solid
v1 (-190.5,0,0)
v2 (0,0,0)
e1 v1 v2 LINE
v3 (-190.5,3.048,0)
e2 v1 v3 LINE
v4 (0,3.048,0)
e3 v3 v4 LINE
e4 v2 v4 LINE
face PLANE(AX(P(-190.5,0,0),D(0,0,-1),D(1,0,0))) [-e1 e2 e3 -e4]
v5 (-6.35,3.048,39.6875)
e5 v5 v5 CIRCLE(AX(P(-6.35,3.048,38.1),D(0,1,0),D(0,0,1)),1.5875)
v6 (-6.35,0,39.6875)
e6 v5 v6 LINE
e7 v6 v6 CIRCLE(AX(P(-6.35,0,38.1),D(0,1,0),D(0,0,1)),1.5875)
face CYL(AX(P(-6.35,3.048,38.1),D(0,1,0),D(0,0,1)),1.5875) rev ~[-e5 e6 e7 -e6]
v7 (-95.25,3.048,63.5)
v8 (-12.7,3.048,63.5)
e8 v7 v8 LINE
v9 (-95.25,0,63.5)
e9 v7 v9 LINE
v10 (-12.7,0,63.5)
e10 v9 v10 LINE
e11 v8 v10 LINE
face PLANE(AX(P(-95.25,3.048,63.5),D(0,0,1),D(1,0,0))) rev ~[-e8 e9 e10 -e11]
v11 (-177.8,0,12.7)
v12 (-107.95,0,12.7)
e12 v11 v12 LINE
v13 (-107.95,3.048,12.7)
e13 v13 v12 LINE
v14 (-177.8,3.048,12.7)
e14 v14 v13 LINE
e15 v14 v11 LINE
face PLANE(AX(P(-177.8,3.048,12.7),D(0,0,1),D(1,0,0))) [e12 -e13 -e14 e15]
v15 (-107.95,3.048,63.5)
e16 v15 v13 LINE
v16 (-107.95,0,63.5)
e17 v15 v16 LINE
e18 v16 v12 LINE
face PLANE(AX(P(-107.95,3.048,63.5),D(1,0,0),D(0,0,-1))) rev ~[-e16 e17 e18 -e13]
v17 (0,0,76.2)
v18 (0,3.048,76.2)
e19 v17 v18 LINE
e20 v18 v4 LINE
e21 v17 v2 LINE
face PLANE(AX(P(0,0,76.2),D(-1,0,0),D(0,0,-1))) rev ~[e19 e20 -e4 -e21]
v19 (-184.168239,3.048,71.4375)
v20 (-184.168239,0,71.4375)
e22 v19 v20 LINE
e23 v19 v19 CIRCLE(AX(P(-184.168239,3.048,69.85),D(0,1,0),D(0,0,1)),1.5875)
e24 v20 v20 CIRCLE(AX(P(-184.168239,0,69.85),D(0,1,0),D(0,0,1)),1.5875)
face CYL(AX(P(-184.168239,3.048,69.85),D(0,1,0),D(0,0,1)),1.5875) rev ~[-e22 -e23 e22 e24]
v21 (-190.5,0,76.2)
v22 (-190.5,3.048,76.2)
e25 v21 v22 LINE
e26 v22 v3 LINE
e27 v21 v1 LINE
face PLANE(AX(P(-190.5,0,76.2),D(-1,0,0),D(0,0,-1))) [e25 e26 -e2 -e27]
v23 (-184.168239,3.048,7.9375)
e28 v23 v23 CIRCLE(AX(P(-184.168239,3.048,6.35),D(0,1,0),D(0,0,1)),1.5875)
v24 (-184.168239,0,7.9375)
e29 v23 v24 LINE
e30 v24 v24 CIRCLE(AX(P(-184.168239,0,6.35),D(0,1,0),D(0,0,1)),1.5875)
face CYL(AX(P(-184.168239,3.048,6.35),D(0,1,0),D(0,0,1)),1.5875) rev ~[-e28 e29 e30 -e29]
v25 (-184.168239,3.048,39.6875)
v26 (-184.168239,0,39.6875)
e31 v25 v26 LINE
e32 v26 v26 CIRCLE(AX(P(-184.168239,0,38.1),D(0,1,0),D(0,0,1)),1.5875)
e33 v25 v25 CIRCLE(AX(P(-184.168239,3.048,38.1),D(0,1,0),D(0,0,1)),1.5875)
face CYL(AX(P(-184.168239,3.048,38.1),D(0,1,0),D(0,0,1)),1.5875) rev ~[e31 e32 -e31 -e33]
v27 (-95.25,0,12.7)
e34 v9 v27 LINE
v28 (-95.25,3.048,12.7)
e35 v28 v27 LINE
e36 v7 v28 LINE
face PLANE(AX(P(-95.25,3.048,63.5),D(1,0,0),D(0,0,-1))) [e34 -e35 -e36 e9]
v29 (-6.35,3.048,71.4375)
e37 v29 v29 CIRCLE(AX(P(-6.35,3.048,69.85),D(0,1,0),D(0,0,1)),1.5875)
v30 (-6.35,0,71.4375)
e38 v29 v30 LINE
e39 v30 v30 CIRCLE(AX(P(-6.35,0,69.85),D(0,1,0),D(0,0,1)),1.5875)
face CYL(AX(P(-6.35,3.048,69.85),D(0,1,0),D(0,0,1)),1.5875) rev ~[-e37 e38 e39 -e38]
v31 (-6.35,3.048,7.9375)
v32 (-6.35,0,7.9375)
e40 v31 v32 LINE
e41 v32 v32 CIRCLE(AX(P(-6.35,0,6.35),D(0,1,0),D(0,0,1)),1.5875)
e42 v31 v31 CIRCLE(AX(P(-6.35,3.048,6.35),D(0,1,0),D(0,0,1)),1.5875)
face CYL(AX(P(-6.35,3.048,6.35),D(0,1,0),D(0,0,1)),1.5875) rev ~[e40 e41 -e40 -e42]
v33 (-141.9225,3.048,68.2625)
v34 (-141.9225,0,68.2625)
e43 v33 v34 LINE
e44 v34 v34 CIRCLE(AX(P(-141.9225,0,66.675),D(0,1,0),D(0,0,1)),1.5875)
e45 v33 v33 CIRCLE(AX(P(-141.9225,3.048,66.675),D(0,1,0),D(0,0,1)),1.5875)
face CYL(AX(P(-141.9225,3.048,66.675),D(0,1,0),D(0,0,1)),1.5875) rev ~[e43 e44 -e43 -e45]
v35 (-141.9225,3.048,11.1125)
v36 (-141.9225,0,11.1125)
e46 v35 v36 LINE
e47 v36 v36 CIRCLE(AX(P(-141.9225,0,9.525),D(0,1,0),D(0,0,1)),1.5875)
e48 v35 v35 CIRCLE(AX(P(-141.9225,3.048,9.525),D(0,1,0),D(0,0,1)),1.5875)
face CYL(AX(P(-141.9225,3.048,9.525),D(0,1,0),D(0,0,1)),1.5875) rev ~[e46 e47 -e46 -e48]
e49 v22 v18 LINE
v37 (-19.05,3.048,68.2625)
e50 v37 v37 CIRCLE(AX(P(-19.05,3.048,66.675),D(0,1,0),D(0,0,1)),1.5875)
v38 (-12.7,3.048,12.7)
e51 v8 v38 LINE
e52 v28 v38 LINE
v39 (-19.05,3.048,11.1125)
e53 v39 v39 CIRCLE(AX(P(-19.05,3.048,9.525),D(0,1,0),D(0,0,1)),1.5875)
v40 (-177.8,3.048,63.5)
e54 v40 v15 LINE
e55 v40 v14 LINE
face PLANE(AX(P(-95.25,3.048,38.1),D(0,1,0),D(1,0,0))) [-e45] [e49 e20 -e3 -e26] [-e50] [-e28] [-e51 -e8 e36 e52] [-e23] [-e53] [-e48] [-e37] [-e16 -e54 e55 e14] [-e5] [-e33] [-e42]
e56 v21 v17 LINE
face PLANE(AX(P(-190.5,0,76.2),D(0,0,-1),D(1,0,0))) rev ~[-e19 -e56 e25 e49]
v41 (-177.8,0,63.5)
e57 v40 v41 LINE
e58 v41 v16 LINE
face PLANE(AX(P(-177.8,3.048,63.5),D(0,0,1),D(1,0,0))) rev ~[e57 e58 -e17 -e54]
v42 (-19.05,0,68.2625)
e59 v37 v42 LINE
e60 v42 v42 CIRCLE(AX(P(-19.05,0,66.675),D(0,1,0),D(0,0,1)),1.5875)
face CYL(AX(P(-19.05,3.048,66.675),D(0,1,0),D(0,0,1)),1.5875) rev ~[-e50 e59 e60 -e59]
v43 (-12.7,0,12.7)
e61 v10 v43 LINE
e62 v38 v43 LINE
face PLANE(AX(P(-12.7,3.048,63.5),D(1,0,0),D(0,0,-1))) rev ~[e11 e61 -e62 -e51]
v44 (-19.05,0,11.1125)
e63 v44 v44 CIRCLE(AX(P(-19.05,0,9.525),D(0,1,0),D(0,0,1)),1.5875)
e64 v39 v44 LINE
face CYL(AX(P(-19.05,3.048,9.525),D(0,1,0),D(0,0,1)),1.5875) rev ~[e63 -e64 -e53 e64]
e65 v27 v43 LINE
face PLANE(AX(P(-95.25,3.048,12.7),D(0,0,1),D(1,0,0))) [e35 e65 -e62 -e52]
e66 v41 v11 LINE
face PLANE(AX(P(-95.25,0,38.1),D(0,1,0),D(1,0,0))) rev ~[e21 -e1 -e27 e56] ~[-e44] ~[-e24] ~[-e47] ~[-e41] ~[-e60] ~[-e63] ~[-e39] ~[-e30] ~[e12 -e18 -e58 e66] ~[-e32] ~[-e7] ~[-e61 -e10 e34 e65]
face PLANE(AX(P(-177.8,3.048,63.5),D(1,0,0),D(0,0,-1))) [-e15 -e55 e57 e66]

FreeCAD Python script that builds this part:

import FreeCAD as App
import Part
import Sketcher

V = App.Vector
Q = App.Units.Quantity

doc = App.newDocument("Part")
body = doc.addObject("PartDesign::Body", "Body")

sketch1 = doc.addObject("Sketcher::SketchObject", "Sketch")
body.addObject(sketch1)
sketch1.AttachmentSupport = (doc.XZ_Plane, [""])
sketch1.MapMode = "FlatFace"
sketch1.addGeometry(Part.LineSegment(V(-190, 0, 0), V(-190, 76, 0)), False)
sketch1.addGeometry(Part.LineSegment(V(-190, 76, 0), V(0, 76, 0)), False)
sketch1.addGeometry(Part.LineSegment(V(0, 76, 0), V(0, 0, 0)), False)
sketch1.addGeometry(Part.LineSegment(V(0, 0, 0), V(-190, 0, 0)), False)
sketch1.addConstraint(Sketcher.Constraint("Coincident", 0, 2, 1, 1))
sketch1.addConstraint(Sketcher.Constraint("Coincident", 1, 2, 2, 1))
sketch1.addConstraint(Sketcher.Constraint("Coincident", 2, 2, 3, 1))
sketch1.addConstraint(Sketcher.Constraint("Coincident", 3, 2, 0, 1))
sketch1.addConstraint(Sketcher.Constraint("Vertical", 0))
sketch1.addConstraint(Sketcher.Constraint("Horizontal", 1))
sketch1.addConstraint(Sketcher.Constraint("Vertical", 2))
sketch1.addConstraint(Sketcher.Constraint("Horizontal", 3))
sketch1.addConstraint(Sketcher.Constraint("Coincident", 2, 2, -1, 1))
sketch1.addConstraint(Sketcher.Constraint("DistanceY", 0, 1, 0, 2, Q("3 in")))
sketch1.addConstraint(Sketcher.Constraint("DistanceX", 1, 1, 1, 2, Q("7.5 in")))
pad1 = doc.addObject("PartDesign::Pad", "Pad")
body.addObject(pad1)
pad1.Profile = sketch1
pad1.Length = Q("0.12 in")
pad1.Reversed = True

sketch2 = doc.addObject("Sketcher::SketchObject", "Sketch001")
body.addObject(sketch2)
sketch2.AttachmentSupport = (doc.XZ_Plane, [""])
sketch2.MapMode = "FlatFace"
sketch2.AttachmentOffset = App.Placement(V(0, 0, -0.12 * 25.4), App.Rotation())
sketch2.addGeometry(Part.LineSegment(V(-95, 13, 0), V(-95, 64, 0)), False)
sketch2.addGeometry(Part.LineSegment(V(-95, 64, 0), V(-13, 64, 0)), False)
sketch2.addGeometry(Part.LineSegment(V(-13, 64, 0), V(-13, 13, 0)), False)
sketch2.addGeometry(Part.LineSegment(V(-13, 13, 0), V(-95, 13, 0)), False)
sketch2.addGeometry(Part.LineSegment(V(-178, 13, 0), V(-178, 64, 0)), False)
sketch2.addGeometry(Part.LineSegment(V(-178, 64, 0), V(-108, 64, 0)), False)
sketch2.addGeometry(Part.LineSegment(V(-108, 64, 0), V(-108, 13, 0)), False)
sketch2.addGeometry(Part.LineSegment(V(-108, 13, 0), V(-178, 13, 0)), False)
sketch2.addConstraint(Sketcher.Constraint("Coincident", 0, 2, 1, 1))
sketch2.addConstraint(Sketcher.Constraint("Coincident", 1, 2, 2, 1))
sketch2.addConstraint(Sketcher.Constraint("Coincident", 2, 2, 3, 1))
sketch2.addConstraint(Sketcher.Constraint("Coincident", 3, 2, 0, 1))
sketch2.addConstraint(Sketcher.Constraint("Coincident", 4, 2, 5, 1))
sketch2.addConstraint(Sketcher.Constraint("Coincident", 5, 2, 6, 1))
sketch2.addConstraint(Sketcher.Constraint("Coincident", 6, 2, 7, 1))
sketch2.addConstraint(Sketcher.Constraint("Coincident", 7, 2, 4, 1))
sketch2.addConstraint(Sketcher.Constraint("Vertical", 0))
sketch2.addConstraint(Sketcher.Constraint("Horizontal", 1))
sketch2.addConstraint(Sketcher.Constraint("Vertical", 2))
sketch2.addConstraint(Sketcher.Constraint("Horizontal", 3))
sketch2.addConstraint(Sketcher.Constraint("Vertical", 4))
sketch2.addConstraint(Sketcher.Constraint("Horizontal", 5))
sketch2.addConstraint(Sketcher.Constraint("Vertical", 6))
sketch2.addConstraint(Sketcher.Constraint("Horizontal", 7))
sketch2.addConstraint(Sketcher.Constraint("Horizontal", 1, 2, 4, 2))
sketch2.addConstraint(Sketcher.Constraint("Horizontal", 3, 2, 6, 2))
sketch2.addConstraint(Sketcher.Constraint("DistanceY", 0, 1, 0, 2, Q("2 in")))
sketch2.addConstraint(Sketcher.Constraint("DistanceX", 4, 2, -1, 1, Q("7 in")))
sketch2.addConstraint(Sketcher.Constraint("DistanceX", 1, 1, 1, 2, Q("3.25 in")))
sketch2.addConstraint(Sketcher.Constraint("DistanceX", 5, 1, 5, 2, Q("2.75 in")))
sketch2.addConstraint(Sketcher.Constraint("DistanceY", -1, 1, 0, 2, Q("2.5 in")))
sketch2.addConstraint(Sketcher.Constraint("DistanceX", 1, 2, -1, 1, Q("0.5 in")))
pocket1 = doc.addObject("PartDesign::Pocket", "Pocket")
body.addObject(pocket1)
pocket1.Profile = sketch2
pocket1.Length = Q("0.12 in")
pocket1.Reversed = True

sketch3 = doc.addObject("Sketcher::SketchObject", "Sketch002")
body.addObject(sketch3)
sketch3.AttachmentSupport = (doc.XZ_Plane, [""])
sketch3.MapMode = "FlatFace"
sketch3.AttachmentOffset = App.Placement(V(0, 0, -0.12 * 25.4), App.Rotation())
sketch3.addGeometry(Part.Circle(V(-6.3, 38.1, 0), V(0, 0, 1), 1.6), False)
sketch3.addGeometry(Part.Circle(V(-184.2, 38.1, 0), V(0, 0, 1), 1.6), False)
sketch3.addGeometry(Part.Circle(V(-6.3, 6.3, 0), V(0, 0, 1), 1.6), False)
sketch3.addGeometry(Part.Circle(V(-184.2, 6.3, 0), V(0, 0, 1), 1.6), False)
sketch3.addGeometry(Part.Circle(V(-184.2, 69.8, 0), V(0, 0, 1), 1.6), False)
sketch3.addGeometry(Part.Circle(V(-6.3, 69.8, 0), V(0, 0, 1), 1.6), False)
sketch3.addGeometry(Part.Circle(V(-19.1, 9.5, 0), V(0, 0, 1), 1.6), False)
sketch3.addGeometry(Part.Circle(V(-19.1, 66.7, 0), V(0, 0, 1), 1.6), False)
sketch3.addGeometry(Part.Circle(V(-141.9, 9.5, 0), V(0, 0, 1), 1.6), False)
sketch3.addGeometry(Part.Circle(V(-141.9, 66.7, 0), V(0, 0, 1), 1.6), False)
sketch3.addConstraint(Sketcher.Constraint("Equal", 0, 1))
sketch3.addConstraint(Sketcher.Constraint("Equal", 1, 2))
sketch3.addConstraint(Sketcher.Constraint("Equal", 2, 3))
sketch3.addConstraint(Sketcher.Constraint("Equal", 3, 4))
sketch3.addConstraint(Sketcher.Constraint("Equal", 4, 5))
sketch3.addConstraint(Sketcher.Constraint("Equal", 5, 6))
sketch3.addConstraint(Sketcher.Constraint("Equal", 6, 7))
sketch3.addConstraint(Sketcher.Constraint("Equal", 7, 8))
sketch3.addConstraint(Sketcher.Constraint("Equal", 8, 9))
sketch3.addConstraint(Sketcher.Constraint("Horizontal", 0, 3, 1, 3))
sketch3.addConstraint(Sketcher.Constraint("Horizontal", 2, 3, 3, 3))
sketch3.addConstraint(Sketcher.Constraint("Horizontal", 4, 3, 5, 3))
sketch3.addConstraint(Sketcher.Constraint("Horizontal", 6, 3, 8, 3))
sketch3.addConstraint(Sketcher.Constraint("Horizontal", 7, 3, 9, 3))
sketch3.addConstraint(Sketcher.Constraint("Vertical", 0, 3, 2, 3))
sketch3.addConstraint(Sketcher.Constraint("Vertical", 1, 3, 3, 3))
sketch3.addConstraint(Sketcher.Constraint("Vertical", 3, 3, 4, 3))
sketch3.addConstraint(Sketcher.Constraint("Vertical", 2, 3, 5, 3))
sketch3.addConstraint(Sketcher.Constraint("Vertical", 6, 3, 7, 3))
sketch3.addConstraint(Sketcher.Constraint("Vertical", 8, 3, 9, 3))
sketch3.addConstraint(Sketcher.Constraint("Diameter", 0, Q("0.125 in")))
sketch3.addConstraint(Sketcher.Constraint("DistanceY", -1, 1, 0, 3, Q("1.5 in")))
sketch3.addConstraint(Sketcher.Constraint("DistanceY", 3, 3, 4, 3, Q("2.5 in")))
sketch3.addConstraint(Sketcher.Constraint("DistanceX", 6, 3, 2, 3, Q("0.5 in")))
sketch3.addConstraint(Sketcher.Constraint("DistanceX", 0, 3, -1, 1, Q("0.25 in")))
sketch3.addConstraint(Sketcher.Constraint("DistanceY", -1, 1, 2, 3, Q("0.25 in")))
sketch3.addConstraint(Sketcher.Constraint("DistanceY", 6, 3, 7, 3, Q("2.25 in")))
sketch3.addConstraint(Sketcher.Constraint("DistanceY", -1, 1, 6, 3, Q("0.375 in")))
sketch3.addConstraint(Sketcher.Constraint("DistanceX", 8, 3, -1, 1, Q("5.5875 in")))
sketch3.addConstraint(Sketcher.Constraint("DistanceX", 1, 3, -1, 1, Q("184.168239 mm")))
pocket2 = doc.addObject("PartDesign::Pocket", "Pocket001")
body.addObject(pocket2)
pocket2.Profile = sketch3
pocket2.Length = Q("0.12 in")
pocket2.Reversed = True

doc.recompute()
